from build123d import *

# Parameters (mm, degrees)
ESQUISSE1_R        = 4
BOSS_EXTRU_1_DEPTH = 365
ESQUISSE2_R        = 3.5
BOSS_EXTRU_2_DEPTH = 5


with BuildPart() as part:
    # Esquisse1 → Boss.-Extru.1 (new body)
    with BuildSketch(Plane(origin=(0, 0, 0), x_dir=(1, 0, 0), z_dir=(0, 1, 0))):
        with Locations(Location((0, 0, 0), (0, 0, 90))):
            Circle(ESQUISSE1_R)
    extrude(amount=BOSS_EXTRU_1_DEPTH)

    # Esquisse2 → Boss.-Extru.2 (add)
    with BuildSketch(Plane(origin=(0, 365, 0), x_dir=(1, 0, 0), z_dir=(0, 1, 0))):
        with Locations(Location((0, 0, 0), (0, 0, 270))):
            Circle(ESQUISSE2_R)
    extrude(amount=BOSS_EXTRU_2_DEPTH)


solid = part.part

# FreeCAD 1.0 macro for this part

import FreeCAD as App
import Part
import Sketcher
from FreeCAD import Vector

doc = App.newDocument("Part")
params = doc.addObject("Spreadsheet::Sheet", "Params")
for row, (alias, value) in enumerate([
    ("sketch1_diameter", "8 mm"),
    ("pad1_length", "365 mm"),
    ("sketch2_diameter", "7 mm"),
    ("pad2_length", "5 mm"),
], start=1):
    params.set(f"A{row}", alias)
    params.set(f"B{row}", "=" + value)
    params.setAlias(f"B{row}", alias)

body = doc.addObject("PartDesign::Body", "Body")

sketch1 = doc.addObject("Sketcher::SketchObject", "Sketch")
body.addObject(sketch1)
sketch1.AttachmentSupport = (doc.XZ_Plane, [""])
sketch1.MapMode = "FlatFace"
sketch1.addGeometry(Part.Circle(Vector(0, 0, 0), Vector(0, 0, 1), 4), False)
sketch1.addConstraint([
    Sketcher.Constraint("Coincident", 0, 3, -1, 1),
    Sketcher.Constraint("Diameter", 0, 8.0),
])
sketch1.setExpression("Constraints[1]", "Params.sketch1_diameter")
pad1 = doc.addObject("PartDesign::Pad", "Pad")
body.addObject(pad1)
pad1.Profile = sketch1
pad1.setExpression("Length", "Params.pad1_length")
pad1.Reversed = True

sketch2 = doc.addObject("Sketcher::SketchObject", "Sketch001")
body.addObject(sketch2)
sketch2.AttachmentSupport = (doc.XZ_Plane, [""])
sketch2.MapMode = "FlatFace"
sketch2.AttachmentOffset = App.Placement(Vector(0, 0, -365), App.Rotation())
sketch2.addGeometry(Part.Circle(Vector(0, 0, 0), Vector(0, 0, 1), 3.5), False)
sketch2.addConstraint([
    Sketcher.Constraint("Coincident", 0, 3, -1, 1),
    Sketcher.Constraint("Diameter", 0, 7.0),
])
sketch2.setExpression("Constraints[1]", "Params.sketch2_diameter")
pad2 = doc.addObject("PartDesign::Pad", "Pad001")
body.addObject(pad2)
pad2.Profile = sketch2
pad2.setExpression("Length", "Params.pad2_length")
pad2.Reversed = True

doc.recompute()
